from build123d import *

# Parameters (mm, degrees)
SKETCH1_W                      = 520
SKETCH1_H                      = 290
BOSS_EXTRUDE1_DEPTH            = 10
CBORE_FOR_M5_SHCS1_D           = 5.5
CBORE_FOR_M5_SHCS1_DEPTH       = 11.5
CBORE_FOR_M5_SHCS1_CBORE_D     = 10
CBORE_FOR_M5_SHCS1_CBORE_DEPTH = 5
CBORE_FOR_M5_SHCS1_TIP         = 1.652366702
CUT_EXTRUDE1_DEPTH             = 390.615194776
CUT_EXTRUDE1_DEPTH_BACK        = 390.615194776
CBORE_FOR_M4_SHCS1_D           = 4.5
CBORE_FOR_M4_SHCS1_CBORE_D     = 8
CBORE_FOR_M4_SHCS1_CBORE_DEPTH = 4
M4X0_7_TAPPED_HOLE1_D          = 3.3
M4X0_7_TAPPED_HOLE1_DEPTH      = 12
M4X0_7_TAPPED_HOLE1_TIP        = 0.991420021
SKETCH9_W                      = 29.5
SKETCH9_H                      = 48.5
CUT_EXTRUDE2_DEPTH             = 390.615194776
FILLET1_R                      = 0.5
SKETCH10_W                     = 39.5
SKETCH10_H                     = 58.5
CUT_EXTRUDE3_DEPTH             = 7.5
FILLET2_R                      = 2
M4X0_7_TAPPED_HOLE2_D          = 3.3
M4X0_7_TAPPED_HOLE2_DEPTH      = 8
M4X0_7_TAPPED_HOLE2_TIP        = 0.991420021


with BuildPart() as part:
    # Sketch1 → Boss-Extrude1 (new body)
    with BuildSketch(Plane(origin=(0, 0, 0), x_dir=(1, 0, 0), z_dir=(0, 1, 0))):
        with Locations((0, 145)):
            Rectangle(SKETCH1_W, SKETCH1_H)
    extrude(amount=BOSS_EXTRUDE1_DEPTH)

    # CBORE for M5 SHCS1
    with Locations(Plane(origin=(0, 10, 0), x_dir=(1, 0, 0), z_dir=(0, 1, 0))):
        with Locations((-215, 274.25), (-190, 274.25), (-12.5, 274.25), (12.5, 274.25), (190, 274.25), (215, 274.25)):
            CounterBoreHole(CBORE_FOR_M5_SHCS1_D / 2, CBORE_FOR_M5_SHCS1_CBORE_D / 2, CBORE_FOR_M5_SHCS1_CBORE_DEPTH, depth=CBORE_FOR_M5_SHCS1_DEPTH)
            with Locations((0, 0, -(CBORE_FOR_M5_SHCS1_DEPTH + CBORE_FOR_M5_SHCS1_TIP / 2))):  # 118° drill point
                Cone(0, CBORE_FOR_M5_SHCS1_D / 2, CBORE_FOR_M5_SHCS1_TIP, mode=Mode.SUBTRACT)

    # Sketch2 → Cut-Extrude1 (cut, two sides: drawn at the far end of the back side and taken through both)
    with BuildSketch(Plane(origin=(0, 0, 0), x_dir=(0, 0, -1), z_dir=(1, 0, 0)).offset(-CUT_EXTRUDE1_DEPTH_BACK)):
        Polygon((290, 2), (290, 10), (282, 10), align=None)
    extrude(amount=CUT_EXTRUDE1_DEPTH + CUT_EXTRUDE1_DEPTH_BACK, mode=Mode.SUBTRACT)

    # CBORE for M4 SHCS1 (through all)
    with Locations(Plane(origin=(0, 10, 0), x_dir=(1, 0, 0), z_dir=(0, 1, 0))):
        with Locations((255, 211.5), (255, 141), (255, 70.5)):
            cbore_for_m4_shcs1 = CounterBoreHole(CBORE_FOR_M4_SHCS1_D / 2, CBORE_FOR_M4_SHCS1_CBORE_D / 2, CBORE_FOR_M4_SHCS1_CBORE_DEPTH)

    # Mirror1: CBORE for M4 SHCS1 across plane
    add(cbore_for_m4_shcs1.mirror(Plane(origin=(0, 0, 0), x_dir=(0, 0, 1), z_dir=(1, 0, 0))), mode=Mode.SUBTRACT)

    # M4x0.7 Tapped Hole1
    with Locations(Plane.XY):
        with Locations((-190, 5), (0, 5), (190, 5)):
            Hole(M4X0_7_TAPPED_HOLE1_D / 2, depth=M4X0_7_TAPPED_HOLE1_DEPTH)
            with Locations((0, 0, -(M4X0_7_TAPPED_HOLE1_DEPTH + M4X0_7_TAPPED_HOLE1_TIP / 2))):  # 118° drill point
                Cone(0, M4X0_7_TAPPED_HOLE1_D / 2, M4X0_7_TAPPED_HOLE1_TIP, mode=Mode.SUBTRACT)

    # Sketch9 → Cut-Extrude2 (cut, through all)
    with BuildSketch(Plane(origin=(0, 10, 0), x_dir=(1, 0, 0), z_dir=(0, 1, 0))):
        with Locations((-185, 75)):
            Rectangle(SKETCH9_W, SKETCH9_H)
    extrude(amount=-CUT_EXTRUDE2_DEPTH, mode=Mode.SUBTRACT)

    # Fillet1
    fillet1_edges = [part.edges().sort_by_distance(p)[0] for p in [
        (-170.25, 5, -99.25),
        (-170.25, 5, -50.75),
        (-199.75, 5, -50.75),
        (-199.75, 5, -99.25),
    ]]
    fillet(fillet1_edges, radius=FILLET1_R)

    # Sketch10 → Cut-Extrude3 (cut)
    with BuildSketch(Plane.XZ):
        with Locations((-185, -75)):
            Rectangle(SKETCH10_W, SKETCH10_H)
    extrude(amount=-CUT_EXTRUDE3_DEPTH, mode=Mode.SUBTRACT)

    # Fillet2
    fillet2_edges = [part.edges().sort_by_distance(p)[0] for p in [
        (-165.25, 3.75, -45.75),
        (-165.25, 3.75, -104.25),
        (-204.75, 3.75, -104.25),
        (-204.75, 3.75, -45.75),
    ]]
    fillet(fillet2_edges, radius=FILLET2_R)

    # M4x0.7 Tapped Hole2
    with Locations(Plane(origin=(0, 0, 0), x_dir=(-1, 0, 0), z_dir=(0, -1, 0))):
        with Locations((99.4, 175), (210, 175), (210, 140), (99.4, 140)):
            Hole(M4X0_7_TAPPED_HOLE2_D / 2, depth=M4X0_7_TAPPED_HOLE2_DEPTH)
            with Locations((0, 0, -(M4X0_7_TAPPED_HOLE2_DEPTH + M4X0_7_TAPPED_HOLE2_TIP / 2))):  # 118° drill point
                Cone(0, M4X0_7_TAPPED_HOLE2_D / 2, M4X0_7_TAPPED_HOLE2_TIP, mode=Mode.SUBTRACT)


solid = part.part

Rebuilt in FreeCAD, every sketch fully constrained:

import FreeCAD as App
import Part
import Sketcher

V = App.Vector
Q = App.Units.Quantity


def edges_at(feature, points):
    """Names of the edges that pass closest to the given points."""
    edges = feature.Shape.Edges
    near = lambda p: min(range(len(edges)), key=lambda i: edges[i].distToShape(Part.Vertex(*p))[0])
    return sorted({f"Edge{near(p) + 1}" for p in points})


def add_polygon(sketch, points):
    """Adds a closed chain of lines whose ends are joined by coincident constraints."""
    first, n = sketch.GeometryCount, len(points)
    for a, b in zip(points, points[1:] + points[:1]):
        sketch.addGeometry(Part.LineSegment(App.Vector(*a, 0), App.Vector(*b, 0)), False)
    for i in range(n):
        sketch.addConstraint(Sketcher.Constraint("Coincident", first + i, 2, first + (i + 1) % n, 1))

doc = App.newDocument("Part")
params = doc.addObject("Spreadsheet::Sheet", "Params")
for row, (alias, value) in enumerate([
    ("sketch1_width", "520 mm"),
    ("sketch1_height", "290 mm"),
    ("pad1_length", "10 mm"),
    ("sketch2_diameter", "5.5 mm"),
    ("hole_diameter", "5.5 mm"),
    ("hole_depth", "11.5 mm"),
    ("hole_cbore_diameter", "10 mm"),
    ("hole_cbore_depth", "5 mm"),
    ("sketch3_width", "8 mm"),
    ("sketch4_diameter", "4.5 mm"),
    ("hole2_diameter", "4.5 mm"),
    ("hole2_cbore_diameter", "8 mm"),
    ("hole2_cbore_depth", "4 mm"),
    ("sketch5_diameter", "3.3 mm"),
    ("hole3_diameter", "3.3 mm"),
    ("hole3_depth", "12 mm"),
    ("sketch6_width", "29.5 mm"),
    ("sketch6_height", "48.5 mm"),
    ("fillet_radius", "0.5 mm"),
    ("sketch7_width", "39.5 mm"),
    ("sketch7_height", "58.5 mm"),
    ("pocket3_length", "7.5 mm"),
    ("fillet2_radius", "2 mm"),
    ("sketch8_diameter", "3.3 mm"),
    ("hole4_diameter", "3.3 mm"),
    ("hole4_depth", "8 mm"),
], start=1):
    params.set(f"A{row}", alias)
    params.set(f"B{row}", "=" + value)
    params.setAlias(f"B{row}", alias)

body = doc.addObject("PartDesign::Body", "Body")

sketch1 = doc.addObject("Sketcher::SketchObject", "Sketch")
body.addObject(sketch1)
sketch1.AttachmentSupport = (doc.XZ_Plane, [""])
sketch1.MapMode = "FlatFace"
add_polygon(sketch1, [(-260, -290), (-260, 0), (260, 0), (260, -290)])
sketch1.addConstraint(Sketcher.Constraint("Vertical", 0))
sketch1.addConstraint(Sketcher.Constraint("Horizontal", 1))
sketch1.addConstraint(Sketcher.Constraint("Vertical", 2))
sketch1.addConstraint(Sketcher.Constraint("Horizontal", 3))
sketch1.addConstraint(Sketcher.Constraint("Symmetric", 0, 2, 1, 2, -1, 1))
sketch1.addConstraint(Sketcher.Constraint("DistanceX", 1, 1, 1, 2, Q("520 mm")))
sketch1.addConstraint(Sketcher.Constraint("DistanceY", 0, 1, 0, 2, Q("290 mm")))
sketch1.setExpression("Constraints[9]", "Params.sketch1_width")
sketch1.setExpression("Constraints[10]", "Params.sketch1_height")
pad1 = doc.addObject("PartDesign::Pad", "Pad")
body.addObject(pad1)
pad1.Profile = sketch1
pad1.setExpression("Length", "Params.pad1_length")
pad1.Reversed = True

sketch2 = doc.addObject("Sketcher::SketchObject", "Sketch001")
body.addObject(sketch2)
sketch2.AttachmentSupport = (doc.XZ_Plane, [""])
sketch2.MapMode = "FlatFace"
sketch2.AttachmentOffset = App.Placement(V(0, 0, -10), App.Rotation())
sketch2.addGeometry(Part.Circle(V(-215, -274.25, 0), V(0, 0, 1), 2.75), False)
sketch2.addGeometry(Part.Circle(V(-190, -274.25, 0), V(0, 0, 1), 2.75), False)
sketch2.addGeometry(Part.Circle(V(-12.5, -274.25, 0), V(0, 0, 1), 2.75), False)
sketch2.addGeometry(Part.Circle(V(12.5, -274.25, 0), V(0, 0, 1), 2.75), False)
sketch2.addGeometry(Part.Circle(V(190, -274.25, 0), V(0, 0, 1), 2.75), False)
sketch2.addGeometry(Part.Circle(V(215, -274.25, 0), V(0, 0, 1), 2.75), False)
sketch2.addConstraint(Sketcher.Constraint("Equal", 0, 1))
sketch2.addConstraint(Sketcher.Constraint("Equal", 1, 2))
sketch2.addConstraint(Sketcher.Constraint("Equal", 2, 3))
sketch2.addConstraint(Sketcher.Constraint("Equal", 3, 4))
sketch2.addConstraint(Sketcher.Constraint("Equal", 4, 5))
sketch2.addConstraint(Sketcher.Constraint("Symmetric", 2, 3, 3, 3, -2))
sketch2.addConstraint(Sketcher.Constraint("Symmetric", 1, 3, 4, 3, -2))
sketch2.addConstraint(Sketcher.Constraint("Symmetric", 0, 3, 5, 3, -2))
sketch2.addConstraint(Sketcher.Constraint("Horizontal", 0, 3, 1, 3))
sketch2.addConstraint(Sketcher.Constraint("Horizontal", 1, 3, 2, 3))
sketch2.addConstraint(Sketcher.Constraint("Diameter", 0, Q("5.5 mm")))
sketch2.addConstraint(Sketcher.Constraint("DistanceX", 0, 3, -1, 1, Q("215 mm")))
sketch2.addConstraint(Sketcher.Constraint("DistanceX", 1, 3, -1, 1, Q("190 mm")))
sketch2.addConstraint(Sketcher.Constraint("DistanceX", 2, 3, 3, 3, Q("25 mm")))
sketch2.addConstraint(Sketcher.Constraint("DistanceY", 0, 3, -1, 1, Q("274.25 mm")))
sketch2.setExpression("Constraints[10]", "Params.sketch2_diameter")
doc.recompute()
hole = doc.addObject("PartDesign::Hole", "Hole")
body.addObject(hole)
hole.Profile = sketch2
hole.ThreadType = "None"
hole.setExpression("Diameter", "Params.hole_diameter")
hole.DepthType = "Dimension"
hole.setExpression("Depth", "Params.hole_depth")
hole.DrillPoint = "Angled"
hole.DrillPointAngle = 118
hole.HoleCutType = "Counterbore"
hole.setExpression("HoleCutDiameter", "Params.hole_cbore_diameter")
hole.setExpression("HoleCutDepth", "Params.hole_cbore_depth")
hole.Reversed = True

sketch3 = doc.addObject("Sketcher::SketchObject", "Sketch002")
body.addObject(sketch3)
sketch3.AttachmentSupport = (doc.YZ_Plane, [""])
sketch3.MapMode = "FlatFace"
add_polygon(sketch3, [(2, -290), (10, -290), (10, -282)])
sketch3.addConstraint(Sketcher.Constraint("Horizontal", 0))
sketch3.addConstraint(Sketcher.Constraint("Vertical", 1))
sketch3.addConstraint(Sketcher.Constraint("Equal", 0, 1))
sketch3.addConstraint(Sketcher.Constraint("DistanceX", 0, 1, 0, 2, Q("8 mm")))
sketch3.addConstraint(Sketcher.Constraint("DistanceX", -1, 1, 0, 2, Q("10 mm")))
sketch3.addConstraint(Sketcher.Constraint("DistanceY", 0, 2, -1, 1, Q("290 mm")))
sketch3.setExpression("Constraints[6]", "Params.sketch3_width")
pocket1 = doc.addObject("PartDesign::Pocket", "Pocket")
body.addObject(pocket1)
pocket1.Profile = sketch3
pocket1.Type = "ThroughAll"
pocket1.Midplane = True

sketch4 = doc.addObject("Sketcher::SketchObject", "Sketch003")
body.addObject(sketch4)
sketch4.AttachmentSupport = (doc.XZ_Plane, [""])
sketch4.MapMode = "FlatFace"
sketch4.AttachmentOffset = App.Placement(V(0, 0, -10), App.Rotation())
sketch4.addGeometry(Part.Circle(V(255, -211.5, 0), V(0, 0, 1), 2.25), False)
sketch4.addGeometry(Part.Circle(V(255, -141, 0), V(0, 0, 1), 2.25), False)
sketch4.addGeometry(Part.Circle(V(255, -70.5, 0), V(0, 0, 1), 2.25), False)
sketch4.addConstraint(Sketcher.Constraint("Equal", 0, 1))
sketch4.addConstraint(Sketcher.Constraint("Equal", 1, 2))
sketch4.addConstraint(Sketcher.Constraint("Vertical", 0, 3, 1, 3))
sketch4.addConstraint(Sketcher.Constraint("Vertical", 1, 3, 2, 3))
sketch4.addConstraint(Sketcher.Constraint("Diameter", 0, Q("4.5 mm")))
sketch4.addConstraint(Sketcher.Constraint("DistanceX", -1, 1, 0, 3, Q("255 mm")))
sketch4.addConstraint(Sketcher.Constraint("DistanceY", 1, 3, -1, 1, Q("141 mm")))
sketch4.addConstraint(Sketcher.Constraint("DistanceY", 0, 3, 2, 3, Q("141 mm")))
sketch4.addConstraint(Sketcher.Constraint("DistanceY", 0, 3, -1, 1, Q("211.5 mm")))
sketch4.setExpression("Constraints[4]", "Params.sketch4_diameter")
doc.recompute()
hole2 = doc.addObject("PartDesign::Hole", "Hole001")
body.addObject(hole2)
hole2.Profile = sketch4
hole2.ThreadType = "None"
hole2.setExpression("Diameter", "Params.hole2_diameter")
hole2.DepthType = "ThroughAll"
hole2.HoleCutType = "Counterbore"
hole2.setExpression("HoleCutDiameter", "Params.hole2_cbore_diameter")
hole2.setExpression("HoleCutDepth", "Params.hole2_cbore_depth")
hole2.Reversed = True
doc.recompute()

mirrored = doc.addObject("PartDesign::Mirrored", "Mirrored")
body.addObject(mirrored)
mirrored.Originals = [hole2]
mirrored.MirrorPlane = (doc.YZ_Plane, [""])
body.Tip = mirrored

sketch5 = doc.addObject("Sketcher::SketchObject", "Sketch004")
body.addObject(sketch5)
sketch5.AttachmentSupport = (doc.XY_Plane, [""])
sketch5.MapMode = "FlatFace"
sketch5.addGeometry(Part.Circle(V(-190, 5, 0), V(0, 0, 1), 1.65), False)
sketch5.addGeometry(Part.Circle(V(0, 5, 0), V(0, 0, 1), 1.65), False)
sketch5.addGeometry(Part.Circle(V(190, 5, 0), V(0, 0, 1), 1.65), False)
sketch5.addConstraint(Sketcher.Constraint("Equal", 0, 1))
sketch5.addConstraint(Sketcher.Constraint("Equal", 1, 2))
sketch5.addConstraint(Sketcher.Constraint("Symmetric", 0, 3, 2, 3, -2))
sketch5.addConstraint(Sketcher.Constraint("PointOnObject", 1, 3, -2))
sketch5.addConstraint(Sketcher.Constraint("Horizontal", 0, 3, 1, 3))
sketch5.addConstraint(Sketcher.Constraint("Diameter", 0, Q("3.3 mm")))
sketch5.addConstraint(Sketcher.Constraint("DistanceX", 0, 3, -1, 1, Q("190 mm")))
sketch5.addConstraint(Sketcher.Constraint("DistanceY", -1, 1, 0, 3, Q("5 mm")))
sketch5.setExpression("Constraints[5]", "Params.sketch5_diameter")
doc.recompute()
hole3 = doc.addObject("PartDesign::Hole", "Hole002")
body.addObject(hole3)
hole3.Profile = sketch5
hole3.ThreadType = "None"
hole3.setExpression("Diameter", "Params.hole3_diameter")
hole3.DepthType = "Dimension"
hole3.setExpression("Depth", "Params.hole3_depth")
hole3.DrillPoint = "Angled"
hole3.DrillPointAngle = 118

sketch6 = doc.addObject("Sketcher::SketchObject", "Sketch005")
body.addObject(sketch6)
sketch6.AttachmentSupport = (doc.XZ_Plane, [""])
sketch6.MapMode = "FlatFace"
sketch6.AttachmentOffset = App.Placement(V(0, 0, -10), App.Rotation())
add_polygon(sketch6, [(-199.75, -99.25), (-199.75, -50.75), (-170.25, -50.75), (-170.25, -99.25)])
sketch6.addConstraint(Sketcher.Constraint("Vertical", 0))
sketch6.addConstraint(Sketcher.Constraint("Horizontal", 1))
sketch6.addConstraint(Sketcher.Constraint("Vertical", 2))
sketch6.addConstraint(Sketcher.Constraint("Horizontal", 3))
sketch6.addConstraint(Sketcher.Constraint("DistanceX", 1, 1, 1, 2, Q("29.5 mm")))
sketch6.addConstraint(Sketcher.Constraint("DistanceY", 0, 1, 0, 2, Q("48.5 mm")))
sketch6.addConstraint(Sketcher.Constraint("DistanceX", 0, 2, -1, 1, Q("199.75 mm")))
sketch6.addConstraint(Sketcher.Constraint("DistanceY", 0, 2, -1, 1, Q("50.75 mm")))
sketch6.setExpression("Constraints[8]", "Params.sketch6_width")
sketch6.setExpression("Constraints[9]", "Params.sketch6_height")
pocket2 = doc.addObject("PartDesign::Pocket", "Pocket001")
body.addObject(pocket2)
pocket2.Profile = sketch6
pocket2.Type = "ThroughAll"
pocket2.Reversed = True
doc.recompute()

fillet = doc.addObject("PartDesign::Fillet", "Fillet")
body.addObject(fillet)
fillet.Base = (pocket2, edges_at(pocket2, [
    (-170.25, 5, -99.25),
    (-170.25, 5, -50.75),
    (-199.75, 5, -50.75),
    (-199.75, 5, -99.25),
]))
fillet.setExpression("Radius", "Params.fillet_radius")

sketch7 = doc.addObject("Sketcher::SketchObject", "Sketch006")
body.addObject(sketch7)
sketch7.AttachmentSupport = (doc.XZ_Plane, [""])
sketch7.MapMode = "FlatFace"
add_polygon(sketch7, [(-204.75, -45.75), (-204.75, -104.25), (-165.25, -104.25), (-165.25, -45.75)])
sketch7.addConstraint(Sketcher.Constraint("Vertical", 0))
sketch7.addConstraint(Sketcher.Constraint("Horizontal", 1))
sketch7.addConstraint(Sketcher.Constraint("Vertical", 2))
sketch7.addConstraint(Sketcher.Constraint("Horizontal", 3))
sketch7.addConstraint(Sketcher.Constraint("DistanceX", 1, 1, 1, 2, Q("39.5 mm")))
sketch7.addConstraint(Sketcher.Constraint("DistanceY", 0, 2, 0, 1, Q("58.5 mm")))
sketch7.addConstraint(Sketcher.Constraint("DistanceX", 0, 2, -1, 1, Q("204.75 mm")))
sketch7.addConstraint(Sketcher.Constraint("DistanceY", 0, 2, -1, 1, Q("104.25 mm")))
sketch7.setExpression("Constraints[8]", "Params.sketch7_width")
sketch7.setExpression("Constraints[9]", "Params.sketch7_height")
pocket3 = doc.addObject("PartDesign::Pocket", "Pocket002")
body.addObject(pocket3)
pocket3.Profile = sketch7
pocket3.setExpression("Length", "Params.pocket3_length")
doc.recompute()

fillet2 = doc.addObject("PartDesign::Fillet", "Fillet001")
body.addObject(fillet2)
fillet2.Base = (pocket3, edges_at(pocket3, [
    (-165.25, 3.75, -45.75),
    (-165.25, 3.75, -104.25),
    (-204.75, 3.75, -104.25),
    (-204.75, 3.75, -45.75),
]))
fillet2.setExpression("Radius", "Params.fillet2_radius")

sketch8 = doc.addObject("Sketcher::SketchObject", "Sketch007")
body.addObject(sketch8)
sketch8.AttachmentSupport = (doc.XZ_Plane, [""])
sketch8.MapMode = "FlatFace"
sketch8.addGeometry(Part.Circle(V(-99.4, -175, 0), V(0, 0, 1), 1.65), False)
sketch8.addGeometry(Part.Circle(V(-210, -175, 0), V(0, 0, 1), 1.65), False)
sketch8.addGeometry(Part.Circle(V(-210, -140, 0), V(0, 0, 1), 1.65), False)
sketch8.addGeometry(Part.Circle(V(-99.4, -140, 0), V(0, 0, 1), 1.65), False)
sketch8.addConstraint(Sketcher.Constraint("Equal", 0, 1))
sketch8.addConstraint(Sketcher.Constraint("Equal", 1, 2))
sketch8.addConstraint(Sketcher.Constraint("Equal", 2, 3))
sketch8.addConstraint(Sketcher.Constraint("Horizontal", 0, 3, 1, 3))
sketch8.addConstraint(Sketcher.Constraint("Horizontal", 2, 3, 3, 3))
sketch8.addConstraint(Sketcher.Constraint("Vertical", 1, 3, 2, 3))
sketch8.addConstraint(Sketcher.Constraint("Vertical", 0, 3, 3, 3))
sketch8.addConstraint(Sketcher.Constraint("Diameter", 0, Q("3.3 mm")))
sketch8.addConstraint(Sketcher.Constraint("DistanceY", 0, 3, -1, 1, Q("175 mm")))
sketch8.addConstraint(Sketcher.Constraint("DistanceX", 1, 3, -1, 1, Q("210 mm")))
sketch8.addConstraint(Sketcher.Constraint("DistanceY", 2, 3, -1, 1, Q("140 mm")))
sketch8.addConstraint(Sketcher.Constraint("DistanceX", 0, 3, -1, 1, Q("99.4 mm")))
sketch8.setExpression("Constraints[7]", "Params.sketch8_diameter")
doc.recompute()
hole4 = doc.addObject("PartDesign::Hole", "Hole003")
body.addObject(hole4)
hole4.Profile = sketch8
hole4.ThreadType = "None"
hole4.setExpression("Diameter", "Params.hole4_diameter")
hole4.DepthType = "Dimension"
hole4.setExpression("Depth", "Params.hole4_depth")
hole4.DrillPoint = "Angled"
hole4.DrillPointAngle = 118

doc.recompute()
